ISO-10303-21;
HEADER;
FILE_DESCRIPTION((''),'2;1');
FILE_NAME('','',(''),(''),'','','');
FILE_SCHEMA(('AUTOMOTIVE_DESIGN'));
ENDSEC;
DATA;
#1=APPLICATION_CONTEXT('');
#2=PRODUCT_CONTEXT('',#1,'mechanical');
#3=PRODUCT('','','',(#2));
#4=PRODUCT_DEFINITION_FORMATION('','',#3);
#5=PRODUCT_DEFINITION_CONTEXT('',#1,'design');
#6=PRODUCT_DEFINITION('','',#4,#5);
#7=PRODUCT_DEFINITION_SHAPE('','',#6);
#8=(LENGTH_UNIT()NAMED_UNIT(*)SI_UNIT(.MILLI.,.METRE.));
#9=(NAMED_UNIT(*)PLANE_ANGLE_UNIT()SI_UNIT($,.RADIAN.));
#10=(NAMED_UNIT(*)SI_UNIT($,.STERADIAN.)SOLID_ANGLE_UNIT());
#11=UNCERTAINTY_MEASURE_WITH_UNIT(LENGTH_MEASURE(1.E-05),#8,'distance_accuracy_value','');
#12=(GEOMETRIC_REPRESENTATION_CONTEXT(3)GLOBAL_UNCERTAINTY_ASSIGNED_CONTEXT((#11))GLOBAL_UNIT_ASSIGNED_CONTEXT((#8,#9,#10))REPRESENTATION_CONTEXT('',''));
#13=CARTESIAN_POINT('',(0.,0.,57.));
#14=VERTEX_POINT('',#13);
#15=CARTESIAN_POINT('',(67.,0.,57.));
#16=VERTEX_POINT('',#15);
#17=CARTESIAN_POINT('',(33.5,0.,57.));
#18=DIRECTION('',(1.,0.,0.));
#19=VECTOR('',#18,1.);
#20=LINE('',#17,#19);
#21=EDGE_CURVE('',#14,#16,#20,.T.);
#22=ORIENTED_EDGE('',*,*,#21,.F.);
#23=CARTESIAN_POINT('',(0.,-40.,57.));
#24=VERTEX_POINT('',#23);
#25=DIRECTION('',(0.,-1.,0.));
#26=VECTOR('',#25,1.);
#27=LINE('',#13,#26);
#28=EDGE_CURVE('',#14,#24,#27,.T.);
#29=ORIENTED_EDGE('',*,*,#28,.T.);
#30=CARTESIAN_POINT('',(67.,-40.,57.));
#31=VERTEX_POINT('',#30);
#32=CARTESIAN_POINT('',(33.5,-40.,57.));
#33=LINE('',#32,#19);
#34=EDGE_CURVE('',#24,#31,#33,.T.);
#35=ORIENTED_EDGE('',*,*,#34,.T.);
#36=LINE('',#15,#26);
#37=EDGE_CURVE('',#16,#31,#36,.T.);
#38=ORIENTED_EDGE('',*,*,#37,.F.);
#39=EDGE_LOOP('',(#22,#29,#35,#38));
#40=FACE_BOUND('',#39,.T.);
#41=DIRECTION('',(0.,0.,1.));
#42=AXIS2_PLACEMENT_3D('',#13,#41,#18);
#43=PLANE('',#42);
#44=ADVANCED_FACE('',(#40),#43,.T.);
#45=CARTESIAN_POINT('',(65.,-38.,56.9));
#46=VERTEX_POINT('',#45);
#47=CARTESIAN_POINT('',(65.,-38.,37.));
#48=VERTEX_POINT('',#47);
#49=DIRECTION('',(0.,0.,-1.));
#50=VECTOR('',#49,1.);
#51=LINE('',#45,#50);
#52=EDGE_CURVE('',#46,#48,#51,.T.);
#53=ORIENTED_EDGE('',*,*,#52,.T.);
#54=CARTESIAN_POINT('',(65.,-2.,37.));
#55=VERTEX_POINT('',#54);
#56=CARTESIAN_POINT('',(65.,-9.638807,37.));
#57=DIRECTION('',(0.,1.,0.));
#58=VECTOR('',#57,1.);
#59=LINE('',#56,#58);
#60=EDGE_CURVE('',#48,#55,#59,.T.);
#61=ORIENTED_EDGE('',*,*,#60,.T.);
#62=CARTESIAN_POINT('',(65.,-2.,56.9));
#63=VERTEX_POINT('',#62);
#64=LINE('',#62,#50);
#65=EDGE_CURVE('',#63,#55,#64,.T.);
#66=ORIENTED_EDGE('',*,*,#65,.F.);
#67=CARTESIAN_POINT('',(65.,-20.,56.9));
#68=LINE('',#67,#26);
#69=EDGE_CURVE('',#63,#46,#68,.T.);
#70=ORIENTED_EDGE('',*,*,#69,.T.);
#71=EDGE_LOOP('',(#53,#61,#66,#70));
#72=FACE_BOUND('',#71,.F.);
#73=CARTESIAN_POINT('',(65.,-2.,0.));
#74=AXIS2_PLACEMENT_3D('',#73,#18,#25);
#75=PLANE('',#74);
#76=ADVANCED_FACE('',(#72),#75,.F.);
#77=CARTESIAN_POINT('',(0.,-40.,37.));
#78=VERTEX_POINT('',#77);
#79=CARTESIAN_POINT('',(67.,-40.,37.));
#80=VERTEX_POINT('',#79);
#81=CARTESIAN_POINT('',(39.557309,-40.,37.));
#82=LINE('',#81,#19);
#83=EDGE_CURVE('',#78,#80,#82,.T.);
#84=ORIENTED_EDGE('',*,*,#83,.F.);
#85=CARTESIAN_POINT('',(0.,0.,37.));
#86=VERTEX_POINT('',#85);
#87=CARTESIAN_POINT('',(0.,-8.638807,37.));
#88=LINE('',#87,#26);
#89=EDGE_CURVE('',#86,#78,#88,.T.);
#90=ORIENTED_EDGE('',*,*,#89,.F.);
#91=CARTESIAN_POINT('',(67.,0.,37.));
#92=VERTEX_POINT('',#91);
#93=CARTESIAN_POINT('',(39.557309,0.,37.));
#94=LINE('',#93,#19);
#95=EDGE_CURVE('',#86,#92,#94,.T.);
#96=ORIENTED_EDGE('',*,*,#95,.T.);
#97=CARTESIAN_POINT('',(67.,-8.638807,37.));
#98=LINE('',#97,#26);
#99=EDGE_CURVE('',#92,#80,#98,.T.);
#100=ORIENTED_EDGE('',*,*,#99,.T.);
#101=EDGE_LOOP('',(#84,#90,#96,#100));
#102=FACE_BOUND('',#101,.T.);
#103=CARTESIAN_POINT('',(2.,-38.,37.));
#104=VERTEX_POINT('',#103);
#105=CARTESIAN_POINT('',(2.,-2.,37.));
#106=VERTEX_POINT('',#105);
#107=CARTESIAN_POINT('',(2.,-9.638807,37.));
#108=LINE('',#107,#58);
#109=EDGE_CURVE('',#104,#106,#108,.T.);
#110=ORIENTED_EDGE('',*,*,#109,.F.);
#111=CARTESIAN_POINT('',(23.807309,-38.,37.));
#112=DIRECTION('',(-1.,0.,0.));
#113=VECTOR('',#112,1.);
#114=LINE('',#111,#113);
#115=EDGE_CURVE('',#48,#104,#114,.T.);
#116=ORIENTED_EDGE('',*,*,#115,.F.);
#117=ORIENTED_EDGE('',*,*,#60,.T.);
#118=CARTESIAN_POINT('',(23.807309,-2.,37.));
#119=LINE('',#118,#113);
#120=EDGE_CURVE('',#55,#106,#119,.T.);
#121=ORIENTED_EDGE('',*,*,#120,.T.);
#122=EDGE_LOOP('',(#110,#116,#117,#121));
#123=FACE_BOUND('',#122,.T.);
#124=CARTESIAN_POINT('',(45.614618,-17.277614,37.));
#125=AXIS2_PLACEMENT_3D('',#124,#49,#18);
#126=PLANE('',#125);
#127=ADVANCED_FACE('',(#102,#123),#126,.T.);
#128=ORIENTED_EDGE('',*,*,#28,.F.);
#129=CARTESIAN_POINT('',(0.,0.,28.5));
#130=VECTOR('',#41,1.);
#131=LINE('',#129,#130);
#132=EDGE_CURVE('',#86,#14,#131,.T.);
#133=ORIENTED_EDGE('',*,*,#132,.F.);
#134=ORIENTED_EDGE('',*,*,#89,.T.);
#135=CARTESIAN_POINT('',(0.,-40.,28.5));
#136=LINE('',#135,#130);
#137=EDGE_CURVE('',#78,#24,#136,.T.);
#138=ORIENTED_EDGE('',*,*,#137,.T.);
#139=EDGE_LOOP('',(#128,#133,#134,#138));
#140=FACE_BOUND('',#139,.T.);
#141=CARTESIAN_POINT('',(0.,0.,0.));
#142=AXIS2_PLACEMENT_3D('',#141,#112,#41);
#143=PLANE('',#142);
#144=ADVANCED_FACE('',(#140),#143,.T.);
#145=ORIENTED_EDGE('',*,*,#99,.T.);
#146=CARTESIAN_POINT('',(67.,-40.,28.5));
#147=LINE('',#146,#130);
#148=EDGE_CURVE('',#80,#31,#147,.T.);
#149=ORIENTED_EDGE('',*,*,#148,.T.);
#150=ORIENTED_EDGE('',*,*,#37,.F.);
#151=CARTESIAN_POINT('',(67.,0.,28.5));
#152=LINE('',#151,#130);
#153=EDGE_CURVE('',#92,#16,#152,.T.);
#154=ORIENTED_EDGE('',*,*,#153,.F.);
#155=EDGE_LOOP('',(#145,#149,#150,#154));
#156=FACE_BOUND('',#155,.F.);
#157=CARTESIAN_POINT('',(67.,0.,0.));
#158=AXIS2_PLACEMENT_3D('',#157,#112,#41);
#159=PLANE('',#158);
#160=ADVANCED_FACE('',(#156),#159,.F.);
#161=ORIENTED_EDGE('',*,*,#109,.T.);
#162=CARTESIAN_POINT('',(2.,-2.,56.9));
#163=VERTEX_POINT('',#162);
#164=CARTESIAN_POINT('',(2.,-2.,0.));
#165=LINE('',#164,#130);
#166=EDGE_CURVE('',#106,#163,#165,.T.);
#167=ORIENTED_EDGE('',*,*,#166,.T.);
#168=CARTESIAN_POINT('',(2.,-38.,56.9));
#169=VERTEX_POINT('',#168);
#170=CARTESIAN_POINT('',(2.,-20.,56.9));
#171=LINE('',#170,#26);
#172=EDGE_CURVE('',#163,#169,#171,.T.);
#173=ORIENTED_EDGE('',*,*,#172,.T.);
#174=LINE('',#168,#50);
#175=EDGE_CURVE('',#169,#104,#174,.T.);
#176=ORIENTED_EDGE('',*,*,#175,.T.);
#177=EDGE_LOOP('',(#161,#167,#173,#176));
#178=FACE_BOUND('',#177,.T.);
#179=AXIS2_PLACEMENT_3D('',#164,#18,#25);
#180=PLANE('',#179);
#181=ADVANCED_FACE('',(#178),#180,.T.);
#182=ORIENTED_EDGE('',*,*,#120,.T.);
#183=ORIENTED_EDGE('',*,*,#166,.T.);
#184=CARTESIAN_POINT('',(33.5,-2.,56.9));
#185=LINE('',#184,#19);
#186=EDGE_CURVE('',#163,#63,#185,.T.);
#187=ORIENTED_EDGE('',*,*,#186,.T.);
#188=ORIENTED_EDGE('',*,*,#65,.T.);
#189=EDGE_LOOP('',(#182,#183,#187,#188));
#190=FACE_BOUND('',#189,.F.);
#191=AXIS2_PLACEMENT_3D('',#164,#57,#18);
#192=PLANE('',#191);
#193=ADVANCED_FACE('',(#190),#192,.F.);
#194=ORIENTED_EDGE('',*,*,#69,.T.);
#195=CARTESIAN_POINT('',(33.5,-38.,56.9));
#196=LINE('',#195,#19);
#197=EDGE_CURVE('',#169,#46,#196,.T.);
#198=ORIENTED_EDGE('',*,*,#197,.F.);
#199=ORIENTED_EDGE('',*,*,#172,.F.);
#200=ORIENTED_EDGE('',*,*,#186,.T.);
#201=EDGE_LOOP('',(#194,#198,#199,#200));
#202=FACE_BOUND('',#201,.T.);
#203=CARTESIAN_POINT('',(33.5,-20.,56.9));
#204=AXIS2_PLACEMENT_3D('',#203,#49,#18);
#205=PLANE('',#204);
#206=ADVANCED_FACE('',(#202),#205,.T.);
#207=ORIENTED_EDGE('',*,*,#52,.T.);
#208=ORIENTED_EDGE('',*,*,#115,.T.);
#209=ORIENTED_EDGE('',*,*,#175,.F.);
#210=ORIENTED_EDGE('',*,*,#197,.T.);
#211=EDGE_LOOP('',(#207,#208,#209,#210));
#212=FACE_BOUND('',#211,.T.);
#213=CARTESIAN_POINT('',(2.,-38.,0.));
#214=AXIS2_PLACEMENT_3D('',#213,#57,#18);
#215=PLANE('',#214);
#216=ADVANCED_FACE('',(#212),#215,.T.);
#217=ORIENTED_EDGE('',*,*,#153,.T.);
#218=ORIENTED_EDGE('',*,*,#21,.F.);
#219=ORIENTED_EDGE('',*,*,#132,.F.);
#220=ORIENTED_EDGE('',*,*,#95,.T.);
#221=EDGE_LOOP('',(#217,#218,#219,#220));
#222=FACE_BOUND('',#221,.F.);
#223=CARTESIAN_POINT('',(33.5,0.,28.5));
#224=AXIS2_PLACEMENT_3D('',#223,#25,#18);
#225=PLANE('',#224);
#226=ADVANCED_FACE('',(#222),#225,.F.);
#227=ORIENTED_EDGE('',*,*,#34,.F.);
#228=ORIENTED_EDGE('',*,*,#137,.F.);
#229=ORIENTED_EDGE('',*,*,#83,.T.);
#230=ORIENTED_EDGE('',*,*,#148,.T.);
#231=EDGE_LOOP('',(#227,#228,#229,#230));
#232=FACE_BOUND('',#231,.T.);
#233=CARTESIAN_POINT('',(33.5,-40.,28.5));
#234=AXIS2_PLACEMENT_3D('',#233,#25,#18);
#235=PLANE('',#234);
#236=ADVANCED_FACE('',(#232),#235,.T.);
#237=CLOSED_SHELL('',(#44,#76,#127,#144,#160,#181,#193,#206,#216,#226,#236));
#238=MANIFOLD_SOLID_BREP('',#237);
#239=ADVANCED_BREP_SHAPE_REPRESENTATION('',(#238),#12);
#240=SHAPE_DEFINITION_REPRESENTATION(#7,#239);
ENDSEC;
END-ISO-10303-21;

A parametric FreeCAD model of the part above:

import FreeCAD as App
import Part
import Sketcher
from FreeCAD import Vector
Q = App.Units.Quantity

doc = App.newDocument("Part")
body = doc.addObject("PartDesign::Body", "Body")

sketch1 = doc.addObject("Sketcher::SketchObject", "Sketch")
body.addObject(sketch1)
sketch1.AttachmentSupport = (doc.XZ_Plane, [""])
sketch1.MapMode = "FlatFace"
sketch1.addGeometry([
    Part.LineSegment(Vector(0, 57, 0), Vector(0, 0, 0)),
    Part.LineSegment(Vector(0, 0, 0), Vector(67, 0, 0)),
    Part.LineSegment(Vector(67, 0, 0), Vector(67, 57, 0)),
    Part.LineSegment(Vector(67, 57, 0), Vector(0, 57, 0)),
], False)
sketch1.addConstraint([
    Sketcher.Constraint("Coincident", 0, 2, 1, 1),
    Sketcher.Constraint("Coincident", 1, 2, 2, 1),
    Sketcher.Constraint("Coincident", 2, 2, 3, 1),
    Sketcher.Constraint("Coincident", 3, 2, 0, 1),
    Sketcher.Constraint("Vertical", 0),
    Sketcher.Constraint("Horizontal", 1),
    Sketcher.Constraint("Vertical", 2),
    Sketcher.Constraint("Horizontal", 3),
    Sketcher.Constraint("Coincident", 0, 2, -1, 1),
    Sketcher.Constraint("DistanceX", 1, 1, 1, 2, Q("67 mm")),
    Sketcher.Constraint("DistanceY", 0, 2, 0, 1, Q("57 mm")),
])
pad1 = doc.addObject("PartDesign::Pad", "Pad")
body.addObject(pad1)
pad1.Profile = sketch1
pad1.Length = 40

sketch2 = doc.addObject("Sketcher::SketchObject", "Sketch001")
body.addObject(sketch2)
sketch2.AttachmentSupport = (doc.XY_Plane, [""])
sketch2.MapMode = "FlatFace"
sketch2.addGeometry([
    Part.LineSegment(Vector(2, -38, 0), Vector(2, -2, 0)),
    Part.LineSegment(Vector(2, -2, 0), Vector(65, -2, 0)),
    Part.LineSegment(Vector(65, -2, 0), Vector(65, -38, 0)),
    Part.LineSegment(Vector(65, -38, 0), Vector(2, -38, 0)),
], False)
sketch2.addConstraint([
    Sketcher.Constraint("Coincident", 0, 2, 1, 1),
    Sketcher.Constraint("Coincident", 1, 2, 2, 1),
    Sketcher.Constraint("Coincident", 2, 2, 3, 1),
    Sketcher.Constraint("Coincident", 3, 2, 0, 1),
    Sketcher.Constraint("Vertical", 0),
    Sketcher.Constraint("Horizontal", 1),
    Sketcher.Constraint("Vertical", 2),
    Sketcher.Constraint("Horizontal", 3),
    Sketcher.Constraint("DistanceX", 1, 1, 1, 2, Q("63 mm")),
    Sketcher.Constraint("DistanceY", 0, 1, 0, 2, Q("36 mm")),
    Sketcher.Constraint("DistanceX", -1, 1, 0, 2, Q("2 mm")),
    Sketcher.Constraint("DistanceY", 0, 2, -1, 1, Q("2 mm")),
])
pocket1 = doc.addObject("PartDesign::Pocket", "Pocket")
body.addObject(pocket1)
pocket1.Profile = sketch2
pocket1.Length = 55
pocket1.Reversed = True

sketch3 = doc.addObject("Sketcher::SketchObject", "Sketch002")
body.addObject(sketch3)
sketch3.AttachmentSupport = (doc.XY_Plane, [""])
sketch3.MapMode = "FlatFace"
sketch3.addGeometry([
    Part.LineSegment(Vector(2, -38, 0), Vector(2, -2, 0)),
    Part.LineSegment(Vector(2, -2, 0), Vector(65, -2, 0)),
    Part.LineSegment(Vector(65, -2, 0), Vector(65, -38, 0)),
    Part.LineSegment(Vector(65, -38, 0), Vector(2, -38, 0)),
], False)
sketch3.addConstraint([
    Sketcher.Constraint("Coincident", 0, 2, 1, 1),
    Sketcher.Constraint("Coincident", 1, 2, 2, 1),
    Sketcher.Constraint("Coincident", 2, 2, 3, 1),
    Sketcher.Constraint("Coincident", 3, 2, 0, 1),
    Sketcher.Constraint("Vertical", 0),
    Sketcher.Constraint("Horizontal", 1),
    Sketcher.Constraint("Vertical", 2),
    Sketcher.Constraint("Horizontal", 3),
    Sketcher.Constraint("DistanceX", 1, 1, 1, 2, Q("63 mm")),
    Sketcher.Constraint("DistanceY", 0, 1, 0, 2, Q("36 mm")),
    Sketcher.Constraint("DistanceX", -1, 1, 0, 2, Q("2 mm")),
    Sketcher.Constraint("DistanceY", 0, 2, -1, 1, Q("2 mm")),
])
pocket2 = doc.addObject("PartDesign::Pocket", "Pocket001")
body.addObject(pocket2)
pocket2.Profile = sketch3
pocket2.Length = 56.9
pocket2.Reversed = True

sketch4 = doc.addObject("Sketcher::SketchObject", "Sketch003")
body.addObject(sketch4)
sketch4.AttachmentSupport = (doc.XY_Plane, [""])
sketch4.MapMode = "FlatFace"
sketch4.addGeometry([
    Part.LineSegment(Vector(-35, -68, 0), Vector(-35, 27, 0)),
    Part.LineSegment(Vector(-35, 27, 0), Vector(106, 27, 0)),
    Part.LineSegment(Vector(106, 27, 0), Vector(106, -68, 0)),
    Part.LineSegment(Vector(106, -68, 0), Vector(-35, -68, 0)),
], False)
sketch4.addConstraint([
    Sketcher.Constraint("Coincident", 0, 2, 1, 1),
    Sketcher.Constraint("Coincident", 1, 2, 2, 1),
    Sketcher.Constraint("Coincident", 2, 2, 3, 1),
    Sketcher.Constraint("Coincident", 3, 2, 0, 1),
    Sketcher.Constraint("Vertical", 0),
    Sketcher.Constraint("Horizontal", 1),
    Sketcher.Constraint("Vertical", 2),
    Sketcher.Constraint("Horizontal", 3),
    Sketcher.Constraint("DistanceX", 1, 1, 1, 2, Q("141.291812 mm")),
    Sketcher.Constraint("DistanceY", 0, 1, 0, 2, Q("94.46678 mm")),
    Sketcher.Constraint("DistanceX", 0, 2, -1, 1, Q("34.967996 mm")),
    Sketcher.Constraint("DistanceY", -1, 1, 0, 2, Q("26.688915 mm")),
])
pocket3 = doc.addObject("PartDesign::Pocket", "Pocket002")
body.addObject(pocket3)
pocket3.Profile = sketch4
pocket3.Length = 20
pocket3.Reversed = True

sketch5 = doc.addObject("Sketcher::SketchObject", "Sketch004")
body.addObject(sketch5)
sketch5.AttachmentSupport = (doc.XY_Plane, [""])
sketch5.MapMode = "FlatFace"
sketch5.AttachmentOffset = App.Placement(Vector(0, 0, 20), App.Rotation())
sketch5.addGeometry([
    Part.LineSegment(Vector(-32, -57, 0), Vector(-32, 22, 0)),
    Part.LineSegment(Vector(-32, 22, 0), Vector(123, 22, 0)),
    Part.LineSegment(Vector(123, 22, 0), Vector(123, -57, 0)),
    Part.LineSegment(Vector(123, -57, 0), Vector(-32, -57, 0)),
], False)
sketch5.addConstraint([
    Sketcher.Constraint("Coincident", 0, 2, 1, 1),
    Sketcher.Constraint("Coincident", 1, 2, 2, 1),
    Sketcher.Constraint("Coincident", 2, 2, 3, 1),
    Sketcher.Constraint("Coincident", 3, 2, 0, 1),
    Sketcher.Constraint("Vertical", 0),
    Sketcher.Constraint("Horizontal", 1),
    Sketcher.Constraint("Vertical", 2),
    Sketcher.Constraint("Horizontal", 3),
    Sketcher.Constraint("DistanceX", 1, 1, 1, 2, Q("154.631503 mm")),
    Sketcher.Constraint("DistanceY", 0, 1, 0, 2, Q("78.676945 mm")),
    Sketcher.Constraint("DistanceY", -1, 1, 0, 2, Q("22.060858 mm")),
    Sketcher.Constraint("DistanceX", -1, 1, 1, 2, Q("122.930369 mm")),
])
pocket4 = doc.addObject("PartDesign::Pocket", "Pocket003")
body.addObject(pocket4)
pocket4.Profile = sketch5
pocket4.Length = 17
pocket4.Reversed = True

doc.recompute()
